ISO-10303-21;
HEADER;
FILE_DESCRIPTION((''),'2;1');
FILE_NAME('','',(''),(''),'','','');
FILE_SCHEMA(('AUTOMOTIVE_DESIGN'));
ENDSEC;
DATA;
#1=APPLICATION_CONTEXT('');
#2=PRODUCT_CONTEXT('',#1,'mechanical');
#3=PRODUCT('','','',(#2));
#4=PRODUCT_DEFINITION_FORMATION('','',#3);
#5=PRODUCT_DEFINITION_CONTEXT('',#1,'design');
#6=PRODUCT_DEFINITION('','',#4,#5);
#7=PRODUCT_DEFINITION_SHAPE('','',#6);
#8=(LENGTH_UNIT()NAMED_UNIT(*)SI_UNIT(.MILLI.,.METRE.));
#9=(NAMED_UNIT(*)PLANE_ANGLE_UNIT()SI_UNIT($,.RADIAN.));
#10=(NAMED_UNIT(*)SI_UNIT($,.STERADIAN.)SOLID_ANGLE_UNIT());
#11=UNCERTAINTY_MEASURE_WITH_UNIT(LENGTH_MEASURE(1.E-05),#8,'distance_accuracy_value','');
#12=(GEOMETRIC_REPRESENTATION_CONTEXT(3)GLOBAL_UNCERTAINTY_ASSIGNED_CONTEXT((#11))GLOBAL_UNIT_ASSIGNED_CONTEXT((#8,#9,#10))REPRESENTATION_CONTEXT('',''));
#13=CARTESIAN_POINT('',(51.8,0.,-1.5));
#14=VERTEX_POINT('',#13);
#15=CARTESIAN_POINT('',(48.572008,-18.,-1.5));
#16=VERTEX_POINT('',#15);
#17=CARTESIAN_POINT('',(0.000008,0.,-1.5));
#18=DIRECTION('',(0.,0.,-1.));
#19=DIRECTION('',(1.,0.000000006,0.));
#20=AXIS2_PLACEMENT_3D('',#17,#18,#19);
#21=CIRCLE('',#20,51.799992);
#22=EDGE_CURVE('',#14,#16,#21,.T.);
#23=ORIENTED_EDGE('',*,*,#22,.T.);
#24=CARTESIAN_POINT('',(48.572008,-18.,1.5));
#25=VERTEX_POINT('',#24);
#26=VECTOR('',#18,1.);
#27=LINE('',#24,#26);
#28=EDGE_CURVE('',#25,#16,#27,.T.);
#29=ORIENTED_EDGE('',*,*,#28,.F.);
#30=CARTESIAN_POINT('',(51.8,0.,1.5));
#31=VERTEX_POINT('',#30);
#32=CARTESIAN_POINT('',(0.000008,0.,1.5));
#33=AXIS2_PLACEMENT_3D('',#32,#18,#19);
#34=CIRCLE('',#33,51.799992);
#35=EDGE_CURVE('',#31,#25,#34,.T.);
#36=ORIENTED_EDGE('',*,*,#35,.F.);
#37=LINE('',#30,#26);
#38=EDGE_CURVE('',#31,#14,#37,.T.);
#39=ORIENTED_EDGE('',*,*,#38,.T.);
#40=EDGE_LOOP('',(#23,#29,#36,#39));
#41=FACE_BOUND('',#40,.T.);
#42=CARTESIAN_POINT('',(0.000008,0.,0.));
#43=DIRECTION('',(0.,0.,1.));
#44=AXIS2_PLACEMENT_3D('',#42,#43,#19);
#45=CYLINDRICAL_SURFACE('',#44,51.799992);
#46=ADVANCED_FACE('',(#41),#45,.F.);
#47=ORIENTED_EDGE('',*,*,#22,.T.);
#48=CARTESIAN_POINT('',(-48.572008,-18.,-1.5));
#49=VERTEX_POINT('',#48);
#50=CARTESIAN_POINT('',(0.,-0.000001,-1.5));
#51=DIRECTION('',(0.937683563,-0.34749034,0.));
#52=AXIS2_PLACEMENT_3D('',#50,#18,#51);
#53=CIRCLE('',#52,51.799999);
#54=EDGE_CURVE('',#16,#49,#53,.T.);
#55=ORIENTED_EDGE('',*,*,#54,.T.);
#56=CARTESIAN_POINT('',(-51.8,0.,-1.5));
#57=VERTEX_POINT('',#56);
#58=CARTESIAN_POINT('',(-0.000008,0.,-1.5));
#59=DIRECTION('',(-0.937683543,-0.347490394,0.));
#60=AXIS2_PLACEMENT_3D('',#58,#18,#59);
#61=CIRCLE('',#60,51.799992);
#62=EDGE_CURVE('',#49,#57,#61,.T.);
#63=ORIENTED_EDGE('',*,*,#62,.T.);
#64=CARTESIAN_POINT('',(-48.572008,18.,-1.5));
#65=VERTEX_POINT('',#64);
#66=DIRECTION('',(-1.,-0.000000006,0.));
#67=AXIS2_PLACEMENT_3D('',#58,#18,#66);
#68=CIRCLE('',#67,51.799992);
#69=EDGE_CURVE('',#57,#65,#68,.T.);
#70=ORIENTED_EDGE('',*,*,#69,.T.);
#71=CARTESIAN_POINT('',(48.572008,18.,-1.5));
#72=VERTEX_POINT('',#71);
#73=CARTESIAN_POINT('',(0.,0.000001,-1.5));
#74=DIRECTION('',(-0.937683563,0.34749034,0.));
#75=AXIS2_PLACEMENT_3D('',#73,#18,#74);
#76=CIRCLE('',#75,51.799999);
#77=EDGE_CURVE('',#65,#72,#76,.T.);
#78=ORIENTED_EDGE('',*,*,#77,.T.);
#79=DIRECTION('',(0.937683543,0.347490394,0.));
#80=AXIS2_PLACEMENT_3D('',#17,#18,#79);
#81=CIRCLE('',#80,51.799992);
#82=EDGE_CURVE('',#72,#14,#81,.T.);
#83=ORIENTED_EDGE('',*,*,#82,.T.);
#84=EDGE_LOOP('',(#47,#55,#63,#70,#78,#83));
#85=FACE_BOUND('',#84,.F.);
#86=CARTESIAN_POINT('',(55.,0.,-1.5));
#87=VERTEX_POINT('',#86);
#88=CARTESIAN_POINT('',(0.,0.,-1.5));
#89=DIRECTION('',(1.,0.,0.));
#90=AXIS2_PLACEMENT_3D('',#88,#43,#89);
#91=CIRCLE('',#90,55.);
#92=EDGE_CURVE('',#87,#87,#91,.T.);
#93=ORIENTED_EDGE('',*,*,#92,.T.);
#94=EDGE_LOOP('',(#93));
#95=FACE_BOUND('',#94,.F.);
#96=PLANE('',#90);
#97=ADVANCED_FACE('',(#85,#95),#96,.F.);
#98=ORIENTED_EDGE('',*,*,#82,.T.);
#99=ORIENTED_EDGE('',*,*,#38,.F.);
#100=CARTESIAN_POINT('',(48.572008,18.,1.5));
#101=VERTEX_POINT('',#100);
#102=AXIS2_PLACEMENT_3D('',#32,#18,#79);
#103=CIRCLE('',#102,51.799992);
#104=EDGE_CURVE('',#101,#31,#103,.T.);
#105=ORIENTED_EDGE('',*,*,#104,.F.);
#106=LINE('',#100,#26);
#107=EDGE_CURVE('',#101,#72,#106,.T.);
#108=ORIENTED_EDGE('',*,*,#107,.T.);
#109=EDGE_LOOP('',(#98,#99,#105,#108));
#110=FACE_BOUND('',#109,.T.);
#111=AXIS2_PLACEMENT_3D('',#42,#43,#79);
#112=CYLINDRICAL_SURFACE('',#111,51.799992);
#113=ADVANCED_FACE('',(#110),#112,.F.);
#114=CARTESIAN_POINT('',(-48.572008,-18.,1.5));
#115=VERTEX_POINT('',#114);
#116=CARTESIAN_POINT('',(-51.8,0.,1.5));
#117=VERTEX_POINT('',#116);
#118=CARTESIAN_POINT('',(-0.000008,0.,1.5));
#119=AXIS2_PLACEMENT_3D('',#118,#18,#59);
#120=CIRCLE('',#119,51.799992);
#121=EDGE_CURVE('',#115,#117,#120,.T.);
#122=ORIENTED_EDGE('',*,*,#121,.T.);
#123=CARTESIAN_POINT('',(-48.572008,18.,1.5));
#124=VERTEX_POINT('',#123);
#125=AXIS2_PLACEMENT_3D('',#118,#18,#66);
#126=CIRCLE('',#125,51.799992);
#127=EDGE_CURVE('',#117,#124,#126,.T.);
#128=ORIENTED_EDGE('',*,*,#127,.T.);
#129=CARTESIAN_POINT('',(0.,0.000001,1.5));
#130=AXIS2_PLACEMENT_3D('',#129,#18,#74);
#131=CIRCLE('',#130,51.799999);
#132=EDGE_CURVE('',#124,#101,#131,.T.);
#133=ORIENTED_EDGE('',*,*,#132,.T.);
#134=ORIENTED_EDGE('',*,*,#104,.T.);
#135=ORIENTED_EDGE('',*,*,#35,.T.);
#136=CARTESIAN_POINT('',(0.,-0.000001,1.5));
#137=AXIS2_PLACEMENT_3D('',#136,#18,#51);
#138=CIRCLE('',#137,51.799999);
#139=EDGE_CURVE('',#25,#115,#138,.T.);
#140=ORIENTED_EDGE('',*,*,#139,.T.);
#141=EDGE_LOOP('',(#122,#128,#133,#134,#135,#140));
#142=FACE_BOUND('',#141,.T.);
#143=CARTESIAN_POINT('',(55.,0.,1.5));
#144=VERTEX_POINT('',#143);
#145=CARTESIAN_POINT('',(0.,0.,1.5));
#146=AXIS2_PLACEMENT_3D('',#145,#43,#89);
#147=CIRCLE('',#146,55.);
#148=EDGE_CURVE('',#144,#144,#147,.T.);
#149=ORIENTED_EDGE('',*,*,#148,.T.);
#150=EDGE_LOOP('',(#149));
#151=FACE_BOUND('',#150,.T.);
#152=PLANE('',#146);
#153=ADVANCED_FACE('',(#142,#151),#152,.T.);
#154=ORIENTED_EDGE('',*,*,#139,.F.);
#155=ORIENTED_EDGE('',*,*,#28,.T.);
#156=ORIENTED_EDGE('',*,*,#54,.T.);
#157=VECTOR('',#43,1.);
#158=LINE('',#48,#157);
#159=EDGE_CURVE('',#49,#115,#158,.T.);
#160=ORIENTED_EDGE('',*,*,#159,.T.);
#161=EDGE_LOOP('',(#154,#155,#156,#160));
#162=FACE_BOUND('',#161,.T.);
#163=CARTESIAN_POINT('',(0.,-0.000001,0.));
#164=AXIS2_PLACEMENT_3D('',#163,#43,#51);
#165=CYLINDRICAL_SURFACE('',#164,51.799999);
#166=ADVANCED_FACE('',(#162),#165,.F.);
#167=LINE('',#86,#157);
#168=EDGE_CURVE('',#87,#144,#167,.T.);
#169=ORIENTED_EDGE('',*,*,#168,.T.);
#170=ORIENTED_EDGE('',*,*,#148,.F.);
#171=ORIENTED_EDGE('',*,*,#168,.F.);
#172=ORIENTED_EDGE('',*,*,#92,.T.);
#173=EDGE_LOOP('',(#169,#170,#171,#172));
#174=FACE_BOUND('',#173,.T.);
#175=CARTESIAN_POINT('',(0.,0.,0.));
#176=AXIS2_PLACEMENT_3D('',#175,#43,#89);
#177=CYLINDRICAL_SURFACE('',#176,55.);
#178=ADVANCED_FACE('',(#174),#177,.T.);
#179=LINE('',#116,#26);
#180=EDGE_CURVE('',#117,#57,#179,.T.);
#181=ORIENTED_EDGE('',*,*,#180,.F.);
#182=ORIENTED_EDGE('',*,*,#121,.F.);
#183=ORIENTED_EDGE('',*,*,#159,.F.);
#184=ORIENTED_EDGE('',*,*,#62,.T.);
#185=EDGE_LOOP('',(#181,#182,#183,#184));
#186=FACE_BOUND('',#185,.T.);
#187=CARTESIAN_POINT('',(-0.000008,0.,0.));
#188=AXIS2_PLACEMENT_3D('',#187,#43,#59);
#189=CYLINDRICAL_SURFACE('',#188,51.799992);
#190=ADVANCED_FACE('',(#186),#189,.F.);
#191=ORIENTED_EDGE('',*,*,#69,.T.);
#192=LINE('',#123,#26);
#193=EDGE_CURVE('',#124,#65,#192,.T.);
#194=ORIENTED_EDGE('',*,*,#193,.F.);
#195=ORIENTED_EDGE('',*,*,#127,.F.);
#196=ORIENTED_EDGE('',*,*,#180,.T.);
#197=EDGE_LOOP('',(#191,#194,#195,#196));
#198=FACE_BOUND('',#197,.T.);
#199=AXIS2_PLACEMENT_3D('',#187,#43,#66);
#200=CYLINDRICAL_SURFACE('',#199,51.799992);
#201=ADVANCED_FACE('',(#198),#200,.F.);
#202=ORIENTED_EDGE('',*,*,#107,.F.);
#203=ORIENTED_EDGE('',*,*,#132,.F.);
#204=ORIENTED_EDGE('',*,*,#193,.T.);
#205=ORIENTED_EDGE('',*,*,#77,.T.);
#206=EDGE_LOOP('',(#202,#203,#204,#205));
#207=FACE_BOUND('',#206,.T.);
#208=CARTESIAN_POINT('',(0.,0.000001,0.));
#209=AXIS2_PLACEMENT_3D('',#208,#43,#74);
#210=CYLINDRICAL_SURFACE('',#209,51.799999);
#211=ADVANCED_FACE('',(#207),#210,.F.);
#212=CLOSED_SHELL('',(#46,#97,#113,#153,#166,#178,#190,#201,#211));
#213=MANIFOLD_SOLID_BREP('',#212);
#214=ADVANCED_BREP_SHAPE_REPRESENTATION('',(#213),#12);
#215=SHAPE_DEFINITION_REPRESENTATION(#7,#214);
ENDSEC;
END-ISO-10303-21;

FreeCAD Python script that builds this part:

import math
import FreeCAD as App
import Part
import Sketcher
from FreeCAD import Vector
Q = App.Units.Quantity

doc = App.newDocument("Part")
body = doc.addObject("PartDesign::Body", "Body")

# Sketch on XY plane
sketch1 = body.newObject("Sketcher::SketchObject", "Sketch")
sketch1.AttachmentSupport = (doc.getObject("XY_Plane"), [""])
sketch1.MapMode = "FlatFace"
sketch1.addGeometry(Part.Circle(Vector(0, 0, 0), Vector(0, 0, 1), 55), False)
sketch1.addGeometry(Part.ArcOfCircle(Part.Circle(Vector(0, -0.000001, 0), Vector(0, 0, 1), 51.799999), math.radians(-159.66611), math.radians(-20.33389)), False)
sketch1.addGeometry(Part.ArcOfCircle(Part.Circle(Vector(-0.000008, 0, 0), Vector(0, 0, 1), 51.799992), math.radians(180), math.radians(200.333893)), False)
sketch1.addGeometry(Part.ArcOfCircle(Part.Circle(Vector(-0.000008, 0, 0), Vector(0, 0, 1), 51.799992), math.radians(159.666107), math.radians(180)), False)
sketch1.addGeometry(Part.ArcOfCircle(Part.Circle(Vector(0, 0.000001, 0), Vector(0, 0, 1), 51.799999), math.radians(20.33389), math.radians(159.66611)), False)
sketch1.addGeometry(Part.ArcOfCircle(Part.Circle(Vector(0.000008, 0, 0), Vector(0, 0, 1), 51.799992), math.radians(0), math.radians(20.333893)), False)
sketch1.addGeometry(Part.ArcOfCircle(Part.Circle(Vector(0.000008, 0, 0), Vector(0, 0, 1), 51.799992), math.radians(-20.333893), math.radians(0)), False)
sketch1.addConstraint(Sketcher.Constraint("Tangent", 1, 1, 2, 2))
sketch1.addConstraint(Sketcher.Constraint("Tangent", 2, 1, 3, 2))
sketch1.addConstraint(Sketcher.Constraint("Tangent", 3, 1, 4, 2))
sketch1.addConstraint(Sketcher.Constraint("Tangent", 4, 1, 5, 2))
sketch1.addConstraint(Sketcher.Constraint("Tangent", 5, 1, 6, 2))
sketch1.addConstraint(Sketcher.Constraint("Tangent", 6, 1, 1, 2))
sketch1.addConstraint(Sketcher.Constraint("Coincident", 0, 3, -1, 1))
sketch1.addConstraint(Sketcher.Constraint("Coincident", 1, 3, -1, 1))
sketch1.addConstraint(Sketcher.Constraint("Coincident", 3, 3, -1, 1))
sketch1.addConstraint(Sketcher.Constraint("Equal", 1, 4))
sketch1.addConstraint(Sketcher.Constraint("PointOnObject", 2, 1, -1))
sketch1.addConstraint(Sketcher.Constraint("PointOnObject", 5, 1, -1))
sketch1.addConstraint(Sketcher.Constraint("Horizontal", 3, 1, 4, 1))
sketch1.addConstraint(Sketcher.Constraint("Horizontal", 1, 1, 6, 1))
sketch1.addConstraint(Sketcher.Constraint("Vertical", 1, 1, 3, 1))
sketch1.addConstraint(Sketcher.Constraint("Diameter", 0, Q("110 mm")))
sketch1.addConstraint(Sketcher.Constraint("Radius", 1, Q("51.799999 mm")))
sketch1.addConstraint(Sketcher.Constraint("DistanceY", 1, 1, -1, 1, Q("18 mm")))
pad1 = body.newObject("PartDesign::Pad", "Pad")
pad1.Profile = sketch1
pad1.Length = 3
pad1.Midplane = True

doc.recompute()
